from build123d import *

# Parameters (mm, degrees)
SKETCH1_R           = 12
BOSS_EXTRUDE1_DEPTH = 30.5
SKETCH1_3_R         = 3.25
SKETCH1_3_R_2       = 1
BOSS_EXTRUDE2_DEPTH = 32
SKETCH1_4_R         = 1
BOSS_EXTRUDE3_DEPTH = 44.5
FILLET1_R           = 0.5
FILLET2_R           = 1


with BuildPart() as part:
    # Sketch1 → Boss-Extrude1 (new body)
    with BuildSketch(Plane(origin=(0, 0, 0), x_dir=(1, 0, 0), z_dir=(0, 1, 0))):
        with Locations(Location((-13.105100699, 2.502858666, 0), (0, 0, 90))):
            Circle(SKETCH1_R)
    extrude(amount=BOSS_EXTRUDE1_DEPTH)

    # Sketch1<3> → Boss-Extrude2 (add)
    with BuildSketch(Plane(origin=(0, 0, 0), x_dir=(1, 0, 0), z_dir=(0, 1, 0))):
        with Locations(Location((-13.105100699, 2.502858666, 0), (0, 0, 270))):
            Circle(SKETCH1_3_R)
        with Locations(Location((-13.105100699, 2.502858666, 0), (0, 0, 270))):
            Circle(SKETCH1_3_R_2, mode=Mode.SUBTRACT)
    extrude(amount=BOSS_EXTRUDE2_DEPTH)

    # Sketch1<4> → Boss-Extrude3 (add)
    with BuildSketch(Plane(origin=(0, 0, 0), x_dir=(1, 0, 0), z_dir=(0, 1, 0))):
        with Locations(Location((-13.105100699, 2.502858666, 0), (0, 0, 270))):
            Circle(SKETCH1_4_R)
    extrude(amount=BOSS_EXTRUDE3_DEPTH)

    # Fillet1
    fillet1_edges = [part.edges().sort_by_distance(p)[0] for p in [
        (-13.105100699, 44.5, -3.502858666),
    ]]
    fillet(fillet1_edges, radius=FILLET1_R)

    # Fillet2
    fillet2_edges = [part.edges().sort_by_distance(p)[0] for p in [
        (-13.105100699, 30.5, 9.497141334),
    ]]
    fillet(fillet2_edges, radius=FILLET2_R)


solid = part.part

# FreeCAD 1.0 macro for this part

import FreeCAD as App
import Part
import Sketcher
from FreeCAD import Vector
Q = App.Units.Quantity


def edges_at(feature, points):
    """Names of the edges that pass closest to the given points."""
    edges = feature.Shape.Edges
    near = lambda p: min(range(len(edges)), key=lambda i: edges[i].distToShape(Part.Vertex(*p))[0])
    return sorted({f"Edge{near(p) + 1}" for p in points})

doc = App.newDocument("Part")
body = doc.addObject("PartDesign::Body", "Body")

# Sketch on XZ plane
sketch1 = body.newObject("Sketcher::SketchObject", "Sketch")
sketch1.AttachmentSupport = (doc.getObject("XZ_Plane"), [""])
sketch1.MapMode = "FlatFace"
sketch1.addGeometry(Part.Circle(Vector(-13, -3, 0), Vector(0, 0, 1), 12), False)
sketch1.addConstraint([
    Sketcher.Constraint("Diameter", 0, Q("24 mm")),
    Sketcher.Constraint("DistanceX", 0, 3, -1, 1, Q("13.105101 mm")),
    Sketcher.Constraint("DistanceY", 0, 3, -1, 1, Q("2.502859 mm")),
])
pad1 = body.newObject("PartDesign::Pad", "Pad")
pad1.Profile = sketch1
pad1.Length = 30.5
pad1.Reversed = True

# Sketch on XZ plane
sketch2 = body.newObject("Sketcher::SketchObject", "Sketch001")
sketch2.AttachmentSupport = (doc.getObject("XZ_Plane"), [""])
sketch2.MapMode = "FlatFace"
sketch2.addGeometry([
    Part.Circle(Vector(-13.1, -2.5, 0), Vector(0, 0, 1), 3.2),
    Part.Circle(Vector(-13.1, -2.5, 0), Vector(0, 0, 1), 1),
], False)
sketch2.addConstraint([
    Sketcher.Constraint("Coincident", 1, 3, 0, 3),
    Sketcher.Constraint("Diameter", 1, Q("2 mm")),
    Sketcher.Constraint("Diameter", 0, Q("6.5 mm")),
    Sketcher.Constraint("DistanceX", 0, 3, -1, 1, Q("13.105101 mm")),
    Sketcher.Constraint("DistanceY", 0, 3, -1, 1, Q("2.502859 mm")),
])
pad2 = body.newObject("PartDesign::Pad", "Pad001")
pad2.Profile = sketch2
pad2.Length = 32
pad2.Reversed = True

# Sketch on XZ plane
sketch3 = body.newObject("Sketcher::SketchObject", "Sketch002")
sketch3.AttachmentSupport = (doc.getObject("XZ_Plane"), [""])
sketch3.MapMode = "FlatFace"
sketch3.addGeometry(Part.Circle(Vector(-13.1, -2.5, 0), Vector(0, 0, 1), 1), False)
sketch3.addConstraint([
    Sketcher.Constraint("Diameter", 0, Q("2 mm")),
    Sketcher.Constraint("DistanceX", 0, 3, -1, 1, Q("13.105101 mm")),
    Sketcher.Constraint("DistanceY", 0, 3, -1, 1, Q("2.502859 mm")),
])
pad3 = body.newObject("PartDesign::Pad", "Pad002")
pad3.Profile = sketch3
pad3.Length = 44.5
pad3.Reversed = True
doc.recompute()

fillet = body.newObject("PartDesign::Fillet", "Fillet")
fillet.Base = (pad3, edges_at(pad3, [(-13.105, 44.5, -3.503)]))
fillet.Radius = 0.5
doc.recompute()

fillet2 = body.newObject("PartDesign::Fillet", "Fillet001")
fillet2.Base = (fillet, edges_at(fillet, [(-13.105, 30.5, 9.497)]))
fillet2.Radius = 1

doc.recompute()
